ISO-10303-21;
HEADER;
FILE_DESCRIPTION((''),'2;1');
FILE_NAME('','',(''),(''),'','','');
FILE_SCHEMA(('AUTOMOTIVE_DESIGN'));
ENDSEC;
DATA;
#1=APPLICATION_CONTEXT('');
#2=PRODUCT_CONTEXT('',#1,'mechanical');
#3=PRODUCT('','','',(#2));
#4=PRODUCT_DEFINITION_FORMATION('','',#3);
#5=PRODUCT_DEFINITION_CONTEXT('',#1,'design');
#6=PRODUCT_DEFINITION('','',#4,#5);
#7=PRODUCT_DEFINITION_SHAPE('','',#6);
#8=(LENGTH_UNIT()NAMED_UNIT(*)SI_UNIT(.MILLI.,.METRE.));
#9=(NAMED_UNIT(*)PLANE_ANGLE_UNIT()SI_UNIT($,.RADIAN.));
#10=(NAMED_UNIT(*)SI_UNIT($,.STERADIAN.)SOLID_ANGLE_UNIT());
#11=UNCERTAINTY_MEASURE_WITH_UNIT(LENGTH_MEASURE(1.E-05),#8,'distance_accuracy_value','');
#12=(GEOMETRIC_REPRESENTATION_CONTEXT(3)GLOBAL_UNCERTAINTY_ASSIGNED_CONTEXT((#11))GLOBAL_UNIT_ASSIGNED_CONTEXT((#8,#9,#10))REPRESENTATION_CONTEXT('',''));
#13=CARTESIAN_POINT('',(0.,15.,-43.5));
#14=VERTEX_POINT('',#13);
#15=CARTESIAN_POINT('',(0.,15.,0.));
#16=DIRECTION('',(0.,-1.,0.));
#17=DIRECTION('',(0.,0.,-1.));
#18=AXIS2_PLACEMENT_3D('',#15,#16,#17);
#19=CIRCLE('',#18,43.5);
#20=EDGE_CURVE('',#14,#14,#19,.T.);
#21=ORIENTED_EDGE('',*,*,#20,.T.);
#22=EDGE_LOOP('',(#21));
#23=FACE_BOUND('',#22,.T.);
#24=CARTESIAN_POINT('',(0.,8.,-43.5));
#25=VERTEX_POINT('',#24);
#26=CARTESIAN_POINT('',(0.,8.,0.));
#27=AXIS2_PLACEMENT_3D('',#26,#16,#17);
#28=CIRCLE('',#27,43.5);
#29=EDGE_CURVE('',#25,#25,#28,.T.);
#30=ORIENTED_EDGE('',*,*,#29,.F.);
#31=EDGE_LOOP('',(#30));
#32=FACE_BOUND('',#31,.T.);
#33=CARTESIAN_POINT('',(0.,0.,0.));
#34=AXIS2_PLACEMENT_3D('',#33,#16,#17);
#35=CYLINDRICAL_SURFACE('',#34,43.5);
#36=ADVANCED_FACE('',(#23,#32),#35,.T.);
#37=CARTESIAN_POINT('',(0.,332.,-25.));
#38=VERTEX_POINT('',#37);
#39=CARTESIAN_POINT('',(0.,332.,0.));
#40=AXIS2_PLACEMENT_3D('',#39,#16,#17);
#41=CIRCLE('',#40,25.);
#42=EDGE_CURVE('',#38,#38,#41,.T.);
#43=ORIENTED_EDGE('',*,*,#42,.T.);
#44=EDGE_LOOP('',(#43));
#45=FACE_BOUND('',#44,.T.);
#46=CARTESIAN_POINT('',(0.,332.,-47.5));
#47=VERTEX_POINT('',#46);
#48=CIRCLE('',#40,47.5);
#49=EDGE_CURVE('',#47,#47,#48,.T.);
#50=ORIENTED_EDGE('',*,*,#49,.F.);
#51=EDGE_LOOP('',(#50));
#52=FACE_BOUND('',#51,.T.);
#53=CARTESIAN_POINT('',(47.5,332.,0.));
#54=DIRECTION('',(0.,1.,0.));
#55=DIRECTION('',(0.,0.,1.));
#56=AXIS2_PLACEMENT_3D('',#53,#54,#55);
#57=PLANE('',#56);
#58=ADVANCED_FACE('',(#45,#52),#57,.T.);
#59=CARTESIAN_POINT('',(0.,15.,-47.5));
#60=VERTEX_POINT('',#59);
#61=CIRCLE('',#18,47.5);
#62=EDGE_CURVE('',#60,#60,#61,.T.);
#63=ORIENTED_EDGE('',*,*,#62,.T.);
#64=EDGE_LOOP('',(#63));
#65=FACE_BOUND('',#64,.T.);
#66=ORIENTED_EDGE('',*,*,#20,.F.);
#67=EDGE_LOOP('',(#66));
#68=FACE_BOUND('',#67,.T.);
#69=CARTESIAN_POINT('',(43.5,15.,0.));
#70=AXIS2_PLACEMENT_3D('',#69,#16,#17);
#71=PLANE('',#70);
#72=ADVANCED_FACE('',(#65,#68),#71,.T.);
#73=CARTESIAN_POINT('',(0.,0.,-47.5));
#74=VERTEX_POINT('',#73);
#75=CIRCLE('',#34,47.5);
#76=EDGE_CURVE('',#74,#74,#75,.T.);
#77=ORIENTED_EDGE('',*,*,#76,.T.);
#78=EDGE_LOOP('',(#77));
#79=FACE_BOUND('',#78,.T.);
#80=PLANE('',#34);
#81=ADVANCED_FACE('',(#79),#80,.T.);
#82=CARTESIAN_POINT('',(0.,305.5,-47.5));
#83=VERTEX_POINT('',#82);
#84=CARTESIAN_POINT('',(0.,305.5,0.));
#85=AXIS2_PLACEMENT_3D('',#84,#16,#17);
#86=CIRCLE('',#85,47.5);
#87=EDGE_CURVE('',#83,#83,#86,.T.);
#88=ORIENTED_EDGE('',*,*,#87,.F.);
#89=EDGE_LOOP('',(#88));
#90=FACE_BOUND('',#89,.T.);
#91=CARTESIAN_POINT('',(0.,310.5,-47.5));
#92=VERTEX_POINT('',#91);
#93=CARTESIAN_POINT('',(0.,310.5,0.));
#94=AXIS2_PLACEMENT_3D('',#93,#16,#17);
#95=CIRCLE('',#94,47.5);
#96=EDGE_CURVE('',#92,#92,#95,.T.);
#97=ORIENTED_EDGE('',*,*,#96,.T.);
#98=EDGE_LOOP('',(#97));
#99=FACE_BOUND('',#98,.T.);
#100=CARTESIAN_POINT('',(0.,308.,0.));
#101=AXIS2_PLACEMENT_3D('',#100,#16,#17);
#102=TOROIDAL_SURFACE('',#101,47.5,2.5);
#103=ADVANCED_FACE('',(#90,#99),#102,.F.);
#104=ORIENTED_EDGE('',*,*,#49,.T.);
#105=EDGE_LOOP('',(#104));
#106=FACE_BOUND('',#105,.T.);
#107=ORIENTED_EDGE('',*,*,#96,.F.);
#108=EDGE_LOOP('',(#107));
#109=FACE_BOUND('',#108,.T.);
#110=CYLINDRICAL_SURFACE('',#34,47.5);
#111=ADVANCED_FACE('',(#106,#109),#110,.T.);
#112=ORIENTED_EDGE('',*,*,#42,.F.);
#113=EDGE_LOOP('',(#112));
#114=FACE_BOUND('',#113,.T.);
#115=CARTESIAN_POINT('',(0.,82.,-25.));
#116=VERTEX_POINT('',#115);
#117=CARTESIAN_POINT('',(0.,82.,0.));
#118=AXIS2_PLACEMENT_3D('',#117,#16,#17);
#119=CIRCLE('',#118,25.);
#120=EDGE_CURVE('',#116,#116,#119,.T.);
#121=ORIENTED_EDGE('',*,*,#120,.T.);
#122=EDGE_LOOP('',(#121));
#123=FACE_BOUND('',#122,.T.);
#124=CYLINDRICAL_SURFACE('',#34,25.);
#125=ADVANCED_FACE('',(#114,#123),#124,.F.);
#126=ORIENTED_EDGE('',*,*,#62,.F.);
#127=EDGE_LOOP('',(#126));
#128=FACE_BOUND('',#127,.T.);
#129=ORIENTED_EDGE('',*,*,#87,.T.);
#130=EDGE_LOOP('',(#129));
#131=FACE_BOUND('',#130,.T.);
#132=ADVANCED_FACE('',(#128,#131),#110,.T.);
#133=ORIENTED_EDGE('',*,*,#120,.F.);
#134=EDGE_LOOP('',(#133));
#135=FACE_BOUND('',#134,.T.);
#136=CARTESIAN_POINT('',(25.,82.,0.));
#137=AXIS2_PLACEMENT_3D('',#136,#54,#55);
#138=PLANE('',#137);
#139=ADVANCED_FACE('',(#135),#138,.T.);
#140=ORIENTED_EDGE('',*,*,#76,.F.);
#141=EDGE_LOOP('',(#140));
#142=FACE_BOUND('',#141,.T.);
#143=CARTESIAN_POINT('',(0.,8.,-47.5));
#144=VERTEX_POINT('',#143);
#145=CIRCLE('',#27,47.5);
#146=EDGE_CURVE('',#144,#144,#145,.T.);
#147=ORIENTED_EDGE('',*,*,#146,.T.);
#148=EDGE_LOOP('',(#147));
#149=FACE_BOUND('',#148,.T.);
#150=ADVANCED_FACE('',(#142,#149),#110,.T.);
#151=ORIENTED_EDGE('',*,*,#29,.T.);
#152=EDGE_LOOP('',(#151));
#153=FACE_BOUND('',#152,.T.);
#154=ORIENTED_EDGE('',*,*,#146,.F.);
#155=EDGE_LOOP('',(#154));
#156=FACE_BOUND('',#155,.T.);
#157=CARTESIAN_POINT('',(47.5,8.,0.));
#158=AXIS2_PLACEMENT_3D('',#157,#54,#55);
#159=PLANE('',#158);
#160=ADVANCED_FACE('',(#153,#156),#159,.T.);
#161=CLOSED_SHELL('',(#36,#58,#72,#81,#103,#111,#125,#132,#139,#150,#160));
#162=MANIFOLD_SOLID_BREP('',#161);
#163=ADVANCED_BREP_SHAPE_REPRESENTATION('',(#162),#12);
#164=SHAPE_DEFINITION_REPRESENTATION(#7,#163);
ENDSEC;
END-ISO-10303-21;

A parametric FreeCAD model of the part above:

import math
import FreeCAD as App
import Part
import Sketcher
from FreeCAD import Vector
Q = App.Units.Quantity

doc = App.newDocument("Part")
params = doc.addObject("Spreadsheet::Sheet", "Params")
for row, (alias, value) in enumerate([
    ("sketch1_radius", "2.5 mm"),
    ("sketch1_width", "4 mm"),
    ("sketch1_width2", "25 mm"),
    ("sketch1_height", "8 mm"),
    ("sketch1_height2", "7 mm"),
    ("revolution_angle", "360 deg"),
], start=1):
    params.set(f"A{row}", alias)
    params.set(f"B{row}", "=" + value)
    params.setAlias(f"B{row}", alias)

body = doc.addObject("PartDesign::Body", "Body")

# Sketch on XY plane
sketch1 = body.newObject("Sketcher::SketchObject", "Sketch")
sketch1.AttachmentSupport = (doc.getObject("XY_Plane"), [""])
sketch1.MapMode = "FlatFace"
sketch1.addGeometry([
    Part.LineSegment(Vector(0, 0, 0), Vector(47.5, 0, 0)),  # 0
    Part.LineSegment(Vector(47.5, 0, 0), Vector(47.5, 8, 0)),  # 1
    Part.LineSegment(Vector(47.5, 8, 0), Vector(43.5, 8, 0)),  # 2
    Part.LineSegment(Vector(43.5, 8, 0), Vector(43.5, 15, 0)),  # 3
    Part.LineSegment(Vector(43.5, 15, 0), Vector(47.5, 15, 0)),  # 4
    Part.LineSegment(Vector(47.5, 15, 0), Vector(47.5, 305.5, 0)),  # 5
    Part.ArcOfCircle(Part.Circle(Vector(47.5, 308, 0), Vector(0, 0, 1), 2.5), math.radians(90), math.radians(270)),  # 6
    Part.LineSegment(Vector(47.5, 310.5, 0), Vector(47.5, 332, 0)),  # 7
    Part.LineSegment(Vector(47.5, 332, 0), Vector(25, 332, 0)),  # 8
    Part.LineSegment(Vector(25, 332, 0), Vector(25, 82, 0)),  # 9
    Part.LineSegment(Vector(25, 82, 0), Vector(0, 82, 0)),  # 10
    Part.LineSegment(Vector(0, 82, 0), Vector(0, 0, 0)),  # 11
], False)
sketch1.addConstraint([
    Sketcher.Constraint("Coincident", 0, 2, 1, 1),
    Sketcher.Constraint("Coincident", 1, 2, 2, 1),
    Sketcher.Constraint("Coincident", 2, 2, 3, 1),
    Sketcher.Constraint("Coincident", 3, 2, 4, 1),
    Sketcher.Constraint("Coincident", 4, 2, 5, 1),
    Sketcher.Constraint("Coincident", 5, 2, 6, 2),
    Sketcher.Constraint("Coincident", 6, 1, 7, 1),
    Sketcher.Constraint("Coincident", 7, 2, 8, 1),
    Sketcher.Constraint("Coincident", 8, 2, 9, 1),
    Sketcher.Constraint("Coincident", 9, 2, 10, 1),
    Sketcher.Constraint("Coincident", 10, 2, 11, 1),
    Sketcher.Constraint("Coincident", 11, 2, 0, 1),
    Sketcher.Constraint("Horizontal", 0),
    Sketcher.Constraint("Vertical", 1),
    Sketcher.Constraint("Horizontal", 2),
    Sketcher.Constraint("Vertical", 3),
    Sketcher.Constraint("Horizontal", 4),
    Sketcher.Constraint("Vertical", 5),
    Sketcher.Constraint("Vertical", 7),
    Sketcher.Constraint("Horizontal", 8),
    Sketcher.Constraint("Vertical", 9),
    Sketcher.Constraint("Horizontal", 10),
    Sketcher.Constraint("Vertical", 11),
    Sketcher.Constraint("Coincident", 11, 2, -1, 1),
    Sketcher.Constraint("Vertical", 6, 3, 0, 2),
    Sketcher.Constraint("Vertical", 1, 2, 4, 2),
    Sketcher.Constraint("Vertical", 5, 2, 6, 1),
    Sketcher.Constraint("Radius", 6, Q("2.5 mm")),
    Sketcher.Constraint("DistanceX", 2, 2, 2, 1, Q("4 mm")),
    Sketcher.Constraint("DistanceX", 10, 2, 10, 1, Q("25 mm")),
    Sketcher.Constraint("DistanceY", 1, 1, 1, 2, Q("8 mm")),
    Sketcher.Constraint("DistanceY", 3, 1, 3, 2, Q("7 mm")),
    Sketcher.Constraint("DistanceY", 9, 2, 9, 1, Q("250 mm")),
    Sketcher.Constraint("DistanceY", 11, 2, 11, 1, Q("82 mm")),
    Sketcher.Constraint("DistanceX", 0, 1, 0, 2, Q("47.5 mm")),
    Sketcher.Constraint("DistanceY", 5, 1, 5, 2, Q("290.5 mm")),
])
sketch1.setExpression("Constraints[27]", "Params.sketch1_radius")
sketch1.setExpression("Constraints[28]", "Params.sketch1_width")
sketch1.setExpression("Constraints[29]", "Params.sketch1_width2")
sketch1.setExpression("Constraints[30]", "Params.sketch1_height")
sketch1.setExpression("Constraints[31]", "Params.sketch1_height2")
revolution = body.newObject("PartDesign::Revolution", "Revolution")
revolution.Profile = sketch1
revolution.ReferenceAxis = (sketch1, ["V_Axis"])
revolution.setExpression("Angle", "Params.revolution_angle")

doc.recompute()
